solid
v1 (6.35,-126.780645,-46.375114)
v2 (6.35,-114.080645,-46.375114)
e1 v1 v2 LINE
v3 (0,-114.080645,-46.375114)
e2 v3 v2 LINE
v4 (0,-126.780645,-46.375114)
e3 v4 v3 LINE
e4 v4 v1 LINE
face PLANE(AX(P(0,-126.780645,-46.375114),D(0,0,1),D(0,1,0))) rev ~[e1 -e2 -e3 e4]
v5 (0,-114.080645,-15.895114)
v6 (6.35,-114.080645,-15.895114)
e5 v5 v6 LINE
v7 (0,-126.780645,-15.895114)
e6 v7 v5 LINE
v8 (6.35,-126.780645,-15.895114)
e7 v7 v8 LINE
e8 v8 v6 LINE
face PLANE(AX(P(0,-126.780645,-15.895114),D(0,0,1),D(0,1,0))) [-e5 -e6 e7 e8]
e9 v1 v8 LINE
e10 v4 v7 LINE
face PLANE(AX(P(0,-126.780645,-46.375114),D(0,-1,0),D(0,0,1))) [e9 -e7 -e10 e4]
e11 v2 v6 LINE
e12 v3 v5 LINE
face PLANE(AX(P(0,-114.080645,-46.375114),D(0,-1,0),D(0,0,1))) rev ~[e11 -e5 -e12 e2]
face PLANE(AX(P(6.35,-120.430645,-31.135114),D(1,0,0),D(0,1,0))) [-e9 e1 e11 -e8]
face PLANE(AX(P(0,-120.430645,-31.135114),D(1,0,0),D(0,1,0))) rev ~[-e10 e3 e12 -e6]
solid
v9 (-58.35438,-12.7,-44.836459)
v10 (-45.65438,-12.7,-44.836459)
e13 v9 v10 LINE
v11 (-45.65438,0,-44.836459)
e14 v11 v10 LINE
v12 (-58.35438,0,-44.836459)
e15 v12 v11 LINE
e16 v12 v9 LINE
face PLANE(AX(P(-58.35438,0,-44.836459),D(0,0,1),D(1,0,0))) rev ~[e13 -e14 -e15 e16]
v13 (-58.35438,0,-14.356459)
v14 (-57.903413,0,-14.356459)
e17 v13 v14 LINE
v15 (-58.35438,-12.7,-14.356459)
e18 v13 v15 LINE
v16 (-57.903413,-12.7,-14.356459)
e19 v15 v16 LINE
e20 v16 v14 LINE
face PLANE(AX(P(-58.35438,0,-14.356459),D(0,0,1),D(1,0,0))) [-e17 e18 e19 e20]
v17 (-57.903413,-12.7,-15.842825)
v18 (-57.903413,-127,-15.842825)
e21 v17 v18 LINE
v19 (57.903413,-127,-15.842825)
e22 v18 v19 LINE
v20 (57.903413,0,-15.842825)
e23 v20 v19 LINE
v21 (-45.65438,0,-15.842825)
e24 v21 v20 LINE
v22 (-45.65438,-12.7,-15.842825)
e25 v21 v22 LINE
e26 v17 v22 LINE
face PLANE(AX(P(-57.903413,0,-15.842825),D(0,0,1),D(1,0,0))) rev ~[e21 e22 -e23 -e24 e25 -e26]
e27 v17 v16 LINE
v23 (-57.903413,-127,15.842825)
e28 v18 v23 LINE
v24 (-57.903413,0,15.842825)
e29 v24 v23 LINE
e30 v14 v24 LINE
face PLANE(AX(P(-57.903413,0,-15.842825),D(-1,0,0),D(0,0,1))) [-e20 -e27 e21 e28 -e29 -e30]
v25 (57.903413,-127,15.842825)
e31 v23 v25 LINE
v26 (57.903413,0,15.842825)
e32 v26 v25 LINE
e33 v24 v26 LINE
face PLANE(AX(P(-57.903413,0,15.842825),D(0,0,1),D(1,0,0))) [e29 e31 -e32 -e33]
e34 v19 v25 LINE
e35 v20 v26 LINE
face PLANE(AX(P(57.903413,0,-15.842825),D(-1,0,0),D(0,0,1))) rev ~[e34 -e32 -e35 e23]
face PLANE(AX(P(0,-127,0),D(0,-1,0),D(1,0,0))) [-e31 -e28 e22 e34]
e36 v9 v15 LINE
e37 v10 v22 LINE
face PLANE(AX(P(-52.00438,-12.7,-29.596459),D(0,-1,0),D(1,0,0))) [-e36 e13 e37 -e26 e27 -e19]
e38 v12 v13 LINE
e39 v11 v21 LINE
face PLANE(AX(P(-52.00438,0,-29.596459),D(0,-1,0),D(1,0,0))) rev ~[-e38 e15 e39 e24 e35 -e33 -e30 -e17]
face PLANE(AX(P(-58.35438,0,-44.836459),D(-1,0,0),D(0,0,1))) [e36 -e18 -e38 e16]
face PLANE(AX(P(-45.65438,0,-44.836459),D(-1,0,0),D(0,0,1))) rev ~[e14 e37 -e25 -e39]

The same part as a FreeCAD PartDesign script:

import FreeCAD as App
import Part
import Sketcher

V = App.Vector
Q = App.Units.Quantity

doc = App.newDocument("Part")
body = doc.addObject("PartDesign::Body", "Body")

# Sketch on XZ plane
sketch1 = body.newObject("Sketcher::SketchObject", "Sketch")
sketch1.AttachmentSupport = (doc.getObject("XZ_Plane"), [""])
sketch1.MapMode = "FlatFace"
sketch1.addGeometry([
    Part.LineSegment(V(-57.903413, 15.842825, 0), V(-57.903413, -15.842825, 0)),
    Part.LineSegment(V(-57.903413, -15.842825, 0), V(57.903413, -15.842825, 0)),
    Part.LineSegment(V(57.903413, -15.842825, 0), V(57.903413, 15.842825, 0)),
    Part.LineSegment(V(57.903413, 15.842825, 0), V(-57.903413, 15.842825, 0)),
], False)
sketch1.addConstraint([
    Sketcher.Constraint("Coincident", 0, 2, 1, 1),
    Sketcher.Constraint("Coincident", 1, 2, 2, 1),
    Sketcher.Constraint("Coincident", 2, 2, 3, 1),
    Sketcher.Constraint("Coincident", 3, 2, 0, 1),
    Sketcher.Constraint("Vertical", 0),
    Sketcher.Constraint("Horizontal", 1),
    Sketcher.Constraint("Vertical", 2),
    Sketcher.Constraint("Horizontal", 3),
    Sketcher.Constraint("Symmetric", 0, 2, 2, 2, -1, 1),
    Sketcher.Constraint("DistanceY", 0, 2, 0, 1, Q("31.68565 mm")),
    Sketcher.Constraint("DistanceX", 1, 1, 1, 2, Q("115.806826 mm")),
])
pad1 = body.newObject("PartDesign::Pad", "Pad")
pad1.Profile = sketch1
pad1.Length = Q("5 in")

# Sketch on XZ plane
sketch2 = body.newObject("Sketcher::SketchObject", "Sketch001")
sketch2.AttachmentSupport = (doc.getObject("XZ_Plane"), [""])
sketch2.MapMode = "FlatFace"
sketch2.addGeometry([
    Part.LineSegment(V(-58.35438, -14.356459, 0), V(-58.35438, -44.836459, 0)),
    Part.LineSegment(V(-58.35438, -44.836459, 0), V(-45.65438, -44.836459, 0)),
    Part.LineSegment(V(-45.65438, -44.836459, 0), V(-45.65438, -14.356459, 0)),
    Part.LineSegment(V(-45.65438, -14.356459, 0), V(-58.35438, -14.356459, 0)),
], False)
sketch2.addConstraint([
    Sketcher.Constraint("Coincident", 0, 2, 1, 1),
    Sketcher.Constraint("Coincident", 1, 2, 2, 1),
    Sketcher.Constraint("Coincident", 2, 2, 3, 1),
    Sketcher.Constraint("Coincident", 3, 2, 0, 1),
    Sketcher.Constraint("Vertical", 0),
    Sketcher.Constraint("Horizontal", 1),
    Sketcher.Constraint("Vertical", 2),
    Sketcher.Constraint("Horizontal", 3),
    Sketcher.Constraint("DistanceX", 1, 1, 1, 2, Q("0.5 in")),
    Sketcher.Constraint("DistanceY", 0, 2, 0, 1, Q("1.2 in")),
    Sketcher.Constraint("DistanceX", 0, 2, -1, 1, Q("58.35438 mm")),
    Sketcher.Constraint("DistanceY", 0, 2, -1, 1, Q("44.836459 mm")),
])
pad2 = body.newObject("PartDesign::Pad", "Pad001")
pad2.Profile = sketch2
pad2.Length = Q("0.5 in")
body2 = doc.addObject("PartDesign::Body", "Body001")

# Sketch on YZ plane
sketch3 = body2.newObject("Sketcher::SketchObject", "Sketch002")
sketch3.AttachmentSupport = (doc.getObject("YZ_Plane001"), [""])
sketch3.MapMode = "FlatFace"
sketch3.addGeometry([
    Part.LineSegment(V(-126.780645, -15.895114, 0), V(-126.780645, -46.375114, 0)),
    Part.LineSegment(V(-126.780645, -46.375114, 0), V(-114.080645, -46.375114, 0)),
    Part.LineSegment(V(-114.080645, -46.375114, 0), V(-114.080645, -15.895114, 0)),
    Part.LineSegment(V(-114.080645, -15.895114, 0), V(-126.780645, -15.895114, 0)),
], False)
sketch3.addConstraint([
    Sketcher.Constraint("Coincident", 0, 2, 1, 1),
    Sketcher.Constraint("Coincident", 1, 2, 2, 1),
    Sketcher.Constraint("Coincident", 2, 2, 3, 1),
    Sketcher.Constraint("Coincident", 3, 2, 0, 1),
    Sketcher.Constraint("Vertical", 0),
    Sketcher.Constraint("Horizontal", 1),
    Sketcher.Constraint("Vertical", 2),
    Sketcher.Constraint("Horizontal", 3),
    Sketcher.Constraint("DistanceX", 1, 1, 1, 2, Q("0.5 in")),
    Sketcher.Constraint("DistanceY", 0, 2, 0, 1, Q("1.2 in")),
    Sketcher.Constraint("DistanceX", 0, 2, -1, 1, Q("126.780645 mm")),
    Sketcher.Constraint("DistanceY", 0, 2, -1, 1, Q("46.375114 mm")),
])
pad3 = body2.newObject("PartDesign::Pad", "Pad002")
pad3.Profile = sketch3
pad3.Length = Q("0.25 in")

doc.recompute()
